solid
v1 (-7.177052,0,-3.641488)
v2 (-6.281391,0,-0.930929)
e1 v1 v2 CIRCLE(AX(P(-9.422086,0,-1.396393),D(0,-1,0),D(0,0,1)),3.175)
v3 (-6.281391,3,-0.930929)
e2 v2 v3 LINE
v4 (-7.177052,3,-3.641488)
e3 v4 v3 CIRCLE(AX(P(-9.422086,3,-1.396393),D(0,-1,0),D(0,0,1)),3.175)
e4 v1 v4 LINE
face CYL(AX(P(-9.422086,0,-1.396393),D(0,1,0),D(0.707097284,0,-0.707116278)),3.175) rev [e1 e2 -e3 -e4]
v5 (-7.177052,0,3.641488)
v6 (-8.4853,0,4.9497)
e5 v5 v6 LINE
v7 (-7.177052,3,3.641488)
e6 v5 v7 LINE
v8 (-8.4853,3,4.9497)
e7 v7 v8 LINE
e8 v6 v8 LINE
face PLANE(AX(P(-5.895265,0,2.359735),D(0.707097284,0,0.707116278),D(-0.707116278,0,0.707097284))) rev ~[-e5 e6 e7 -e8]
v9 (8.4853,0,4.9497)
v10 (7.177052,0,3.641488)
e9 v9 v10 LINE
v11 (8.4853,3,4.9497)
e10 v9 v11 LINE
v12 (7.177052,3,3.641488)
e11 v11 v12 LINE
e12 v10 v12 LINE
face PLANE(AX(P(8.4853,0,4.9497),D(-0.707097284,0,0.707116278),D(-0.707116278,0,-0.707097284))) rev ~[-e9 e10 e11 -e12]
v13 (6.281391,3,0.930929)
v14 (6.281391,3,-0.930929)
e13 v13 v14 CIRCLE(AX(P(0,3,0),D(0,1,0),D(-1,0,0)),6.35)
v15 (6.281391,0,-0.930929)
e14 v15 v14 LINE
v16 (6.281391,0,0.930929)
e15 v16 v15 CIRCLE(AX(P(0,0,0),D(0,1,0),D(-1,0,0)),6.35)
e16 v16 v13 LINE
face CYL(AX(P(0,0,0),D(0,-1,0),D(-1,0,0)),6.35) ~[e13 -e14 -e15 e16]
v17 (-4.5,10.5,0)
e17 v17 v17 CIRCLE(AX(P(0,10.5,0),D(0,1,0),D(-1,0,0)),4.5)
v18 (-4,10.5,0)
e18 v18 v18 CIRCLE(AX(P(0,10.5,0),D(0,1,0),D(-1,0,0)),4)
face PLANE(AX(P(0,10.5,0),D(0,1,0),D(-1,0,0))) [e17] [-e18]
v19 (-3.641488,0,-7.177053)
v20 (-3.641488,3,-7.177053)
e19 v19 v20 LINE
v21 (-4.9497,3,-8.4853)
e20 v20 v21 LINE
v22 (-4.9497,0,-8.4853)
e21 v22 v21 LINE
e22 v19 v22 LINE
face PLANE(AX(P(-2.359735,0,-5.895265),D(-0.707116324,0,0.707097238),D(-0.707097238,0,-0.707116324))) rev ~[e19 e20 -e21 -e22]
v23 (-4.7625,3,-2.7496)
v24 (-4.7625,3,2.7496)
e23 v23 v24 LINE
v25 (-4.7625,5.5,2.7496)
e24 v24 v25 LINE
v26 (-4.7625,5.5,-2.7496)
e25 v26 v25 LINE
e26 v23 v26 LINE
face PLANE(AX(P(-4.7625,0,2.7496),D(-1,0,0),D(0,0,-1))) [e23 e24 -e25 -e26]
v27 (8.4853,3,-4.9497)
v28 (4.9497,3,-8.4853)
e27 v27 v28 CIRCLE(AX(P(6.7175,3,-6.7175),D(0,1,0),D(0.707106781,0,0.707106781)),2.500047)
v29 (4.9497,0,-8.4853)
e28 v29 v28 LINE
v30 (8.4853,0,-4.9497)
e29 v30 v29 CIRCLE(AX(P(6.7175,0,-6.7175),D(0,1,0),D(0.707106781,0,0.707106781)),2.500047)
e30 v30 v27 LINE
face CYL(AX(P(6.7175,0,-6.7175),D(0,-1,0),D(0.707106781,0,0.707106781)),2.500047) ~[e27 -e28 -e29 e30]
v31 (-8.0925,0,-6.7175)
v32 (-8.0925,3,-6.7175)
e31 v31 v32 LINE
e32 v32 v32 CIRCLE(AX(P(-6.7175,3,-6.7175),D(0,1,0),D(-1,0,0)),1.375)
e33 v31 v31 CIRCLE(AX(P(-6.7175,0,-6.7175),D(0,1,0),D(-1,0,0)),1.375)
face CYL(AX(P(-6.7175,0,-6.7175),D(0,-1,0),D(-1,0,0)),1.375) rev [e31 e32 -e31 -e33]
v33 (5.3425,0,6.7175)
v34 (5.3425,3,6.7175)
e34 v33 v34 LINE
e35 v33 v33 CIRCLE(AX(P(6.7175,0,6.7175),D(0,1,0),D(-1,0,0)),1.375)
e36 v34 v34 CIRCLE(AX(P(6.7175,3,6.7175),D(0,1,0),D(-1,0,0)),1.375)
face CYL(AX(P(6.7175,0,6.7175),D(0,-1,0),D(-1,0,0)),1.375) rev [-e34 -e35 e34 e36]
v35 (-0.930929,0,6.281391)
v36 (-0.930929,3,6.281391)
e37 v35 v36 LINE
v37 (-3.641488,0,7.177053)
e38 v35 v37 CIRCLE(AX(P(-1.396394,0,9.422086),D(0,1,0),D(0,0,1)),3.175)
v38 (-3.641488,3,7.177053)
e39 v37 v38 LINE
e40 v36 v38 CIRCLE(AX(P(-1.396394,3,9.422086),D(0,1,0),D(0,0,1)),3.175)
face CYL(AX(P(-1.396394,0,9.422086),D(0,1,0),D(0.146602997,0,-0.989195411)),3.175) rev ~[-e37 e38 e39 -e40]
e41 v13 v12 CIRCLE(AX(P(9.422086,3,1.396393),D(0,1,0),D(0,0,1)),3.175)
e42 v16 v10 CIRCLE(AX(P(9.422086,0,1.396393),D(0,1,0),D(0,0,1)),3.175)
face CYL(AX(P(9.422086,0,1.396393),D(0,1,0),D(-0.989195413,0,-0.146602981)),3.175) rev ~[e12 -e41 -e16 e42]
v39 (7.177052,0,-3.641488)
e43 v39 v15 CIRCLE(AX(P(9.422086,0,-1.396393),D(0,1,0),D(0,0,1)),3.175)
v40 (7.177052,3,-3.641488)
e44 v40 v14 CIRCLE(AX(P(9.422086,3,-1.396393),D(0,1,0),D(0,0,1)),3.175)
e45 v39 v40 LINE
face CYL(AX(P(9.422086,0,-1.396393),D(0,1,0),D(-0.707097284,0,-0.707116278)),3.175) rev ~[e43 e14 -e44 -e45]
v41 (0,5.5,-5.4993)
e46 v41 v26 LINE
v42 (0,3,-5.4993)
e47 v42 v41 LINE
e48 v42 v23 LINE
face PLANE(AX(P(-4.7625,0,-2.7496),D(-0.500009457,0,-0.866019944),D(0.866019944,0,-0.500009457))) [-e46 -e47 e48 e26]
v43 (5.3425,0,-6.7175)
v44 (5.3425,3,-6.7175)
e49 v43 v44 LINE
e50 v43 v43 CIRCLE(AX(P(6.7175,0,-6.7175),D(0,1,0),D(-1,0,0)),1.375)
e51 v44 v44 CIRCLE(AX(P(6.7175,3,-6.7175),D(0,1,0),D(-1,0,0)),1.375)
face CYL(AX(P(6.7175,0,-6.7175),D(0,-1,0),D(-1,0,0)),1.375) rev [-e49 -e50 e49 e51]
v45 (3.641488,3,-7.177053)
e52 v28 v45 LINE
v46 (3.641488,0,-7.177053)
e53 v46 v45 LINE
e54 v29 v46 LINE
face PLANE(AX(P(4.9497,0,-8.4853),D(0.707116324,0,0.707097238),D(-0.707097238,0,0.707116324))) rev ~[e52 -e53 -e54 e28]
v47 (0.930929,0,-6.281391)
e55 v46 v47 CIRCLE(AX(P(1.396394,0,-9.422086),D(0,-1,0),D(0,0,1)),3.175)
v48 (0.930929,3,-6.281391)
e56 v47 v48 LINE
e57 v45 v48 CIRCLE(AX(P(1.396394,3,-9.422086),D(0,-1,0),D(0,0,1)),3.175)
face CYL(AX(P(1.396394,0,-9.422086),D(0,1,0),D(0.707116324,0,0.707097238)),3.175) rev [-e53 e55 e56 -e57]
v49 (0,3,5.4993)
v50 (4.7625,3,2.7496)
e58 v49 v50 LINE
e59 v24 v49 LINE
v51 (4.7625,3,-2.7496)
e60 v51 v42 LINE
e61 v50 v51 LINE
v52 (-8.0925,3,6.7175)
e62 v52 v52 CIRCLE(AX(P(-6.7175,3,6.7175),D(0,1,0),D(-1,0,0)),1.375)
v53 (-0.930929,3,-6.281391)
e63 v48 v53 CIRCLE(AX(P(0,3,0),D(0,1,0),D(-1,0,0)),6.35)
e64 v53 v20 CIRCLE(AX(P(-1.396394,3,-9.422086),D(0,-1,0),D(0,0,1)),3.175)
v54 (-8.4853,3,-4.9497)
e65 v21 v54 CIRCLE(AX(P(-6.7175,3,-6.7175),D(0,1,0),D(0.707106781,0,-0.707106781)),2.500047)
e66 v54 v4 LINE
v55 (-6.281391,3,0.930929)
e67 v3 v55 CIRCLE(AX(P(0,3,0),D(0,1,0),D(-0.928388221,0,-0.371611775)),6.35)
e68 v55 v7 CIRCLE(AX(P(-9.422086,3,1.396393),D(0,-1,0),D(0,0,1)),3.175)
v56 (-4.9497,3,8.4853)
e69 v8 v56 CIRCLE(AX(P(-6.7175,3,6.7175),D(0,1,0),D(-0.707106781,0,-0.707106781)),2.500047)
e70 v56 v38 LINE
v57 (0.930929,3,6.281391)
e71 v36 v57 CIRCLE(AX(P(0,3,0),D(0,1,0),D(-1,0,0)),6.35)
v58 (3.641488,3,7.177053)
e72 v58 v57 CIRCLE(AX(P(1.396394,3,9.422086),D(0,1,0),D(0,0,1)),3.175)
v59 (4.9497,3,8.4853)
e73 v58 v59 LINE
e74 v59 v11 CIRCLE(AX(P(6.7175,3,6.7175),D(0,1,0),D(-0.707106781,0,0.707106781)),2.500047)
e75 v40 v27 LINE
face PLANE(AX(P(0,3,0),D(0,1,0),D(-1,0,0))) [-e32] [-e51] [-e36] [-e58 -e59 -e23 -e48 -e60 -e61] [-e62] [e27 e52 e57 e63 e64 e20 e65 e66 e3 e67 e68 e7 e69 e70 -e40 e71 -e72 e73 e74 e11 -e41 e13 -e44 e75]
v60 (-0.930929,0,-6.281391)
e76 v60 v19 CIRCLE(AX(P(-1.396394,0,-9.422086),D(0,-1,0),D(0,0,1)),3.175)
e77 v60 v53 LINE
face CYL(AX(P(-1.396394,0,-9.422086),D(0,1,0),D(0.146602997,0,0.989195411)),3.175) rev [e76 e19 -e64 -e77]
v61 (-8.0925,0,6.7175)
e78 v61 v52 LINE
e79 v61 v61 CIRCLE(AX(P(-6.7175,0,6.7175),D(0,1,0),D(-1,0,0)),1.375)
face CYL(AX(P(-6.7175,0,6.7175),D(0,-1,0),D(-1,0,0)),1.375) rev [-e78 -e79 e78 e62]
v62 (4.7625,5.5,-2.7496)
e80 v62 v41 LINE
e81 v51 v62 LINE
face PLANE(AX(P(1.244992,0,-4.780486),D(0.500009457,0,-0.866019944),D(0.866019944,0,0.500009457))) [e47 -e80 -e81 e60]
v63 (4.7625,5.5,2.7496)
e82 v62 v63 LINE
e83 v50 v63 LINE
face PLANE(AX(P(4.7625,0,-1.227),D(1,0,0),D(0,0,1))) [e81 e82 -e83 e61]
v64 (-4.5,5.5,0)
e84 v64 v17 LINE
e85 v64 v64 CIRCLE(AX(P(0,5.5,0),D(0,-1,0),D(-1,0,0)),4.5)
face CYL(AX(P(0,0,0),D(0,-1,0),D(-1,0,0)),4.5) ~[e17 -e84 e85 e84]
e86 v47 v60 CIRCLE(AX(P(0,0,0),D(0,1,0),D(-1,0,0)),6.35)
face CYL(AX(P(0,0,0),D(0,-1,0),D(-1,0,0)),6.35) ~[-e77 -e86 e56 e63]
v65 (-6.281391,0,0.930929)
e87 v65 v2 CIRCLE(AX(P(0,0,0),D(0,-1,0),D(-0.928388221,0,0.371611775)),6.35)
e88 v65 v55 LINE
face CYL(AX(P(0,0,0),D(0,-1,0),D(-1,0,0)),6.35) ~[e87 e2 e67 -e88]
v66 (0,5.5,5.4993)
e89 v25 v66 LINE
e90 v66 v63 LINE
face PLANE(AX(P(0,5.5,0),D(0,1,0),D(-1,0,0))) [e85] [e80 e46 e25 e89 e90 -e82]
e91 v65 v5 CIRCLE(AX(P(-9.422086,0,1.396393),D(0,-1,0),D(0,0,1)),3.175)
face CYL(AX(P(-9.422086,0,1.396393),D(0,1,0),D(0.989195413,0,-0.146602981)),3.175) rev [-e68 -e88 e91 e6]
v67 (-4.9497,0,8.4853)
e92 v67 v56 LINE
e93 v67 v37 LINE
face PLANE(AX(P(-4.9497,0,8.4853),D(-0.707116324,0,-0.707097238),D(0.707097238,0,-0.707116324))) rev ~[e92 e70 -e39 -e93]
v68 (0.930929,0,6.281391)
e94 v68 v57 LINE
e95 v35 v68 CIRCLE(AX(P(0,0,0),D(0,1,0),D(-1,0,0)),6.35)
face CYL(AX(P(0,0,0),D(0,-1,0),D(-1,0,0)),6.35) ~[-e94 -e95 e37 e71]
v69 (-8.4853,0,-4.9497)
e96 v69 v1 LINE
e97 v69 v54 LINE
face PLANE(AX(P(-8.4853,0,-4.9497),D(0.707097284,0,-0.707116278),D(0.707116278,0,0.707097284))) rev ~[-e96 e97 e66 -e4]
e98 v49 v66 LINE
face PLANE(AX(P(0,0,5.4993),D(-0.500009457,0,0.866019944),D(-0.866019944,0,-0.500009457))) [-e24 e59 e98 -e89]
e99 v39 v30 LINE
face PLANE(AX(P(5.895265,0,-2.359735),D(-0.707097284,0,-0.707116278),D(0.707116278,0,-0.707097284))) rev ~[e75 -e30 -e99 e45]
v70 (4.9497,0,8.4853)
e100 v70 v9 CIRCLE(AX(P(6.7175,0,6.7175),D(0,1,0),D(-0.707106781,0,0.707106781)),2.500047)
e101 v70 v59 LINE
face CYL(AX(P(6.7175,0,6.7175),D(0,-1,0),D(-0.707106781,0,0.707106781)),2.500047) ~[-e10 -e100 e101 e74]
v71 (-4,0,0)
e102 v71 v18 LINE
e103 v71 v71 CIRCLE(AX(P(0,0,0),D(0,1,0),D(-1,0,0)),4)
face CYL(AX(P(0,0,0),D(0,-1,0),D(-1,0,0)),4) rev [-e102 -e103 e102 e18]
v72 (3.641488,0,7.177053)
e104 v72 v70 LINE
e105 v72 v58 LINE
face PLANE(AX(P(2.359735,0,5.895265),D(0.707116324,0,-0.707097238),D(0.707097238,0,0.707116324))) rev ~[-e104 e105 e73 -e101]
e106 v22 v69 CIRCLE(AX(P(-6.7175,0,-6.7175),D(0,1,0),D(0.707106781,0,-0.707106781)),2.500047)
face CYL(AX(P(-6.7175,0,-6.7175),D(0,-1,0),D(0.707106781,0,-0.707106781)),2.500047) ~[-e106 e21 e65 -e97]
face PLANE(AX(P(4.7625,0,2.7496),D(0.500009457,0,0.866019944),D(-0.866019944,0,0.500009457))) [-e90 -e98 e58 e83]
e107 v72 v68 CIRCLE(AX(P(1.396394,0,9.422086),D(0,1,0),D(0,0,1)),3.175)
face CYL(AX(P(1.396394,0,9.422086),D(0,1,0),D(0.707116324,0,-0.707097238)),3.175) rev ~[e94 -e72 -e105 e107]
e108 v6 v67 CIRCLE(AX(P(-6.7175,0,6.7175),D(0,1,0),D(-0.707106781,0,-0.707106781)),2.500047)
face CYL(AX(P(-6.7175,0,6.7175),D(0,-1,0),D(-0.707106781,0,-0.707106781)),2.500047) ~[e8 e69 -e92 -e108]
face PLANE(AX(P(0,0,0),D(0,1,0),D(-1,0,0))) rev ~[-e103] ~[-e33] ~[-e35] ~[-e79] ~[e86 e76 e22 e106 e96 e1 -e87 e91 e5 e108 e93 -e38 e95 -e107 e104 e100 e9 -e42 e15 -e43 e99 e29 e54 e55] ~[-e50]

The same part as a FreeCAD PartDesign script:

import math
import FreeCAD as App
import Part
import Sketcher

V = App.Vector
Q = App.Units.Quantity


def edges_at(feature, points):
    """Names of the edges that pass closest to the given points."""
    edges = feature.Shape.Edges
    near = lambda p: min(range(len(edges)), key=lambda i: edges[i].distToShape(Part.Vertex(*p))[0])
    return sorted({f"Edge{near(p) + 1}" for p in points})

doc = App.newDocument("Part")
body = doc.addObject("PartDesign::Body", "Body")

sketch1 = body.newObject("Sketcher::SketchObject", "Sketch")
sketch1.AttachmentSupport = (doc.getObject("XZ_Plane"), [""])
sketch1.MapMode = "FlatFace"
sketch1.addGeometry([
    Part.LineSegment(V(5.9, -2.4, 0), V(8.5, -4.9, 0)),
    Part.ArcOfCircle(Part.Circle(V(6.7, -6.7, 0), V(0, 0, 1), 2.5), math.radians(-135), math.radians(45)),
    Part.LineSegment(V(4.9, -8.5, 0), V(2.4, -5.9, 0)),
    Part.ArcOfCircle(Part.Circle(V(0, 0, 0), V(0, 0, 1), 6.3), math.radians(-112), math.radians(-68)),
    Part.LineSegment(V(-2.4, -5.9, 0), V(-4.9, -8.5, 0)),
    Part.ArcOfCircle(Part.Circle(V(-6.7, -6.7, 0), V(0, 0, 1), 2.5), math.radians(135), math.radians(315)),
    Part.LineSegment(V(-8.5, -4.9, 0), V(-5.9, -2.4, 0)),
    Part.ArcOfCircle(Part.Circle(V(0, 0, 0), V(0, 0, 1), 6.3), math.radians(158), math.radians(202)),
    Part.LineSegment(V(-5.9, 2.4, 0), V(-8.5, 4.9, 0)),
    Part.ArcOfCircle(Part.Circle(V(-6.7, 6.7, 0), V(0, 0, 1), 2.5), math.radians(45), math.radians(225)),
    Part.LineSegment(V(-4.9, 8.5, 0), V(-2.4, 5.9, 0)),
    Part.ArcOfCircle(Part.Circle(V(0, 0, 0), V(0, 0, 1), 6.3), math.radians(68), math.radians(112)),
    Part.LineSegment(V(2.4, 5.9, 0), V(4.9, 8.5, 0)),
    Part.ArcOfCircle(Part.Circle(V(6.7, 6.7, 0), V(0, 0, 1), 2.5), math.radians(-45), math.radians(135)),
    Part.LineSegment(V(8.5, 4.9, 0), V(5.9, 2.4, 0)),
    Part.ArcOfCircle(Part.Circle(V(0, 0, 0), V(0, 0, 1), 6.3), math.radians(-22), math.radians(22)),
    Part.Circle(V(6.7, -6.7, 0), V(0, 0, 1), 1.4),
    Part.Circle(V(0, 0, 0), V(0, 0, 1), 4),
    Part.Circle(V(6.7, 6.7, 0), V(0, 0, 1), 1.4),
    Part.Circle(V(-6.7, 6.7, 0), V(0, 0, 1), 1.4),
    Part.Circle(V(-6.7, -6.7, 0), V(0, 0, 1), 1.4),
], False)
sketch1.addConstraint([
    Sketcher.Constraint("Tangent", 0, 2, 1, 2),
    Sketcher.Constraint("Tangent", 1, 1, 2, 1),
    Sketcher.Constraint("Coincident", 2, 2, 3, 2),
    Sketcher.Constraint("Coincident", 3, 1, 4, 1),
    Sketcher.Constraint("Tangent", 4, 2, 5, 2),
    Sketcher.Constraint("Tangent", 5, 1, 6, 1),
    Sketcher.Constraint("Coincident", 6, 2, 7, 2),
    Sketcher.Constraint("Coincident", 7, 1, 8, 1),
    Sketcher.Constraint("Tangent", 8, 2, 9, 2),
    Sketcher.Constraint("Tangent", 9, 1, 10, 1),
    Sketcher.Constraint("Coincident", 10, 2, 11, 2),
    Sketcher.Constraint("Coincident", 11, 1, 12, 1),
    Sketcher.Constraint("Tangent", 12, 2, 13, 2),
    Sketcher.Constraint("Tangent", 13, 1, 14, 1),
    Sketcher.Constraint("Coincident", 14, 2, 15, 2),
    Sketcher.Constraint("Coincident", 15, 1, 0, 1),
    Sketcher.Constraint("Coincident", 3, 3, -1, 1),
    Sketcher.Constraint("Coincident", 7, 3, -1, 1),
    Sketcher.Constraint("Coincident", 11, 3, -1, 1),
    Sketcher.Constraint("Coincident", 15, 3, -1, 1),
    Sketcher.Constraint("Coincident", 17, 3, -1, 1),
    Sketcher.Constraint("Coincident", 16, 3, 1, 3),
    Sketcher.Constraint("Coincident", 18, 3, 13, 3),
    Sketcher.Constraint("Coincident", 19, 3, 9, 3),
    Sketcher.Constraint("Coincident", 20, 3, 5, 3),
    Sketcher.Constraint("Equal", 1, 5),
    Sketcher.Constraint("Equal", 3, 7),
    Sketcher.Constraint("Equal", 5, 9),
    Sketcher.Constraint("Equal", 7, 11),
    Sketcher.Constraint("Equal", 9, 13),
    Sketcher.Constraint("Equal", 11, 15),
    Sketcher.Constraint("Equal", 16, 18),
    Sketcher.Constraint("Equal", 18, 19),
    Sketcher.Constraint("Equal", 19, 20),
    Sketcher.Constraint("Symmetric", 1, 3, 9, 3, -1, 1),
    Sketcher.Constraint("Symmetric", 5, 3, 13, 3, -1, 1),
    Sketcher.Constraint("Symmetric", 1, 3, 5, 3, -2),
    Sketcher.Constraint("Parallel", 0, 2),
    Sketcher.Constraint("Perpendicular", 2, 4),
    Sketcher.Constraint("Parallel", 4, 6),
    Sketcher.Constraint("Perpendicular", 6, 8),
    Sketcher.Constraint("Parallel", 8, 10),
    Sketcher.Constraint("Perpendicular", 10, 12),
    Sketcher.Constraint("Parallel", 12, 14),
    Sketcher.Constraint("Horizontal", 2, 2, 3, 1),
    Sketcher.Constraint("Equal", 0, 2),
    Sketcher.Constraint("Diameter", 17, 8.0),
    Sketcher.Constraint("Radius", 1, 2.5),
    Sketcher.Constraint("Diameter", 16, 2.75),
    Sketcher.Constraint("Radius", 3, 6.35),
    Sketcher.Constraint("DistanceX", 2, 2, 1, 1, 2.59),
])
pad1 = body.newObject("PartDesign::Pad", "Pad")
pad1.Profile = sketch1
pad1.Length = 3
pad1.Reversed = True

sketch2 = body.newObject("Sketcher::SketchObject", "Sketch001")
sketch2.AttachmentSupport = (doc.getObject("XZ_Plane"), [""])
sketch2.MapMode = "FlatFace"
sketch2.addGeometry([
    Part.LineSegment(V(4.8, -2.7, 0), V(0, -5.5, 0)),
    Part.LineSegment(V(0, -5.5, 0), V(-4.8, -2.7, 0)),
    Part.LineSegment(V(-4.8, -2.7, 0), V(-4.8, 2.7, 0)),
    Part.LineSegment(V(-4.8, 2.7, 0), V(0, 5.5, 0)),
    Part.LineSegment(V(0, 5.5, 0), V(4.8, 2.7, 0)),
    Part.LineSegment(V(4.8, 2.7, 0), V(4.8, -2.7, 0)),
    Part.Circle(V(0, 0, 0), V(0, 0, 1), 4),
], False)
sketch2.addConstraint([
    Sketcher.Constraint("Coincident", 0, 2, 1, 1),
    Sketcher.Constraint("Coincident", 1, 2, 2, 1),
    Sketcher.Constraint("Coincident", 2, 2, 3, 1),
    Sketcher.Constraint("Coincident", 3, 2, 4, 1),
    Sketcher.Constraint("Coincident", 4, 2, 5, 1),
    Sketcher.Constraint("Coincident", 5, 2, 0, 1),
    Sketcher.Constraint("Vertical", 2),
    Sketcher.Constraint("Vertical", 5),
    Sketcher.Constraint("Coincident", 6, 3, -1, 1),
    Sketcher.Constraint("Symmetric", 0, 2, 3, 2, -1, 1),
    Sketcher.Constraint("Symmetric", 1, 2, 4, 2, -1, 1),
    Sketcher.Constraint("PointOnObject", 0, 2, -2),
    Sketcher.Constraint("Parallel", 0, 3),
    Sketcher.Constraint("Horizontal", 2, 2, 4, 2),
    Sketcher.Constraint("Diameter", 6, 8.0),
    Sketcher.Constraint("Angle", 0, Q("-149.9994 deg")),
    Sketcher.Constraint("DistanceX", 2, 2, 4, 2, 9.525),
    Sketcher.Constraint("DistanceY", 1, 2, -1, 1, 2.7496),
])
pad2 = body.newObject("PartDesign::Pad", "Pad001")
pad2.Profile = sketch2
pad2.Length = 5.5
pad2.Reversed = True

sketch3 = body.newObject("Sketcher::SketchObject", "Sketch002")
sketch3.AttachmentSupport = (doc.getObject("XZ_Plane"), [""])
sketch3.MapMode = "FlatFace"
sketch3.addGeometry([
    Part.Circle(V(0, 0, 0), V(0, 0, 1), 4.5),
    Part.Circle(V(0, 0, 0), V(0, 0, 1), 4),
], False)
sketch3.addConstraint([
    Sketcher.Constraint("Coincident", 0, 3, -1, 1),
    Sketcher.Constraint("Coincident", 1, 3, -1, 1),
    Sketcher.Constraint("Diameter", 0, 9.0),
    Sketcher.Constraint("Diameter", 1, 8.0),
])
pad3 = body.newObject("PartDesign::Pad", "Pad002")
pad3.Profile = sketch3
pad3.Length = 10.5
pad3.Reversed = True
doc.recompute()

fillet = body.newObject("PartDesign::Fillet", "Fillet")
fillet.Base = (pad3, edges_at(pad3, [
    (2.36, 1.5, -5.895),
    (-2.36, 1.5, -5.895),
    (-5.895, 1.5, 2.36),
    (-5.895, 1.5, -2.36),
    (-2.36, 1.5, 5.895),
    (2.36, 1.5, 5.895),
    (5.895, 1.5, -2.36),
    (5.895, 1.5, 2.36),
]))
fillet.Radius = 3.175

doc.recompute()
